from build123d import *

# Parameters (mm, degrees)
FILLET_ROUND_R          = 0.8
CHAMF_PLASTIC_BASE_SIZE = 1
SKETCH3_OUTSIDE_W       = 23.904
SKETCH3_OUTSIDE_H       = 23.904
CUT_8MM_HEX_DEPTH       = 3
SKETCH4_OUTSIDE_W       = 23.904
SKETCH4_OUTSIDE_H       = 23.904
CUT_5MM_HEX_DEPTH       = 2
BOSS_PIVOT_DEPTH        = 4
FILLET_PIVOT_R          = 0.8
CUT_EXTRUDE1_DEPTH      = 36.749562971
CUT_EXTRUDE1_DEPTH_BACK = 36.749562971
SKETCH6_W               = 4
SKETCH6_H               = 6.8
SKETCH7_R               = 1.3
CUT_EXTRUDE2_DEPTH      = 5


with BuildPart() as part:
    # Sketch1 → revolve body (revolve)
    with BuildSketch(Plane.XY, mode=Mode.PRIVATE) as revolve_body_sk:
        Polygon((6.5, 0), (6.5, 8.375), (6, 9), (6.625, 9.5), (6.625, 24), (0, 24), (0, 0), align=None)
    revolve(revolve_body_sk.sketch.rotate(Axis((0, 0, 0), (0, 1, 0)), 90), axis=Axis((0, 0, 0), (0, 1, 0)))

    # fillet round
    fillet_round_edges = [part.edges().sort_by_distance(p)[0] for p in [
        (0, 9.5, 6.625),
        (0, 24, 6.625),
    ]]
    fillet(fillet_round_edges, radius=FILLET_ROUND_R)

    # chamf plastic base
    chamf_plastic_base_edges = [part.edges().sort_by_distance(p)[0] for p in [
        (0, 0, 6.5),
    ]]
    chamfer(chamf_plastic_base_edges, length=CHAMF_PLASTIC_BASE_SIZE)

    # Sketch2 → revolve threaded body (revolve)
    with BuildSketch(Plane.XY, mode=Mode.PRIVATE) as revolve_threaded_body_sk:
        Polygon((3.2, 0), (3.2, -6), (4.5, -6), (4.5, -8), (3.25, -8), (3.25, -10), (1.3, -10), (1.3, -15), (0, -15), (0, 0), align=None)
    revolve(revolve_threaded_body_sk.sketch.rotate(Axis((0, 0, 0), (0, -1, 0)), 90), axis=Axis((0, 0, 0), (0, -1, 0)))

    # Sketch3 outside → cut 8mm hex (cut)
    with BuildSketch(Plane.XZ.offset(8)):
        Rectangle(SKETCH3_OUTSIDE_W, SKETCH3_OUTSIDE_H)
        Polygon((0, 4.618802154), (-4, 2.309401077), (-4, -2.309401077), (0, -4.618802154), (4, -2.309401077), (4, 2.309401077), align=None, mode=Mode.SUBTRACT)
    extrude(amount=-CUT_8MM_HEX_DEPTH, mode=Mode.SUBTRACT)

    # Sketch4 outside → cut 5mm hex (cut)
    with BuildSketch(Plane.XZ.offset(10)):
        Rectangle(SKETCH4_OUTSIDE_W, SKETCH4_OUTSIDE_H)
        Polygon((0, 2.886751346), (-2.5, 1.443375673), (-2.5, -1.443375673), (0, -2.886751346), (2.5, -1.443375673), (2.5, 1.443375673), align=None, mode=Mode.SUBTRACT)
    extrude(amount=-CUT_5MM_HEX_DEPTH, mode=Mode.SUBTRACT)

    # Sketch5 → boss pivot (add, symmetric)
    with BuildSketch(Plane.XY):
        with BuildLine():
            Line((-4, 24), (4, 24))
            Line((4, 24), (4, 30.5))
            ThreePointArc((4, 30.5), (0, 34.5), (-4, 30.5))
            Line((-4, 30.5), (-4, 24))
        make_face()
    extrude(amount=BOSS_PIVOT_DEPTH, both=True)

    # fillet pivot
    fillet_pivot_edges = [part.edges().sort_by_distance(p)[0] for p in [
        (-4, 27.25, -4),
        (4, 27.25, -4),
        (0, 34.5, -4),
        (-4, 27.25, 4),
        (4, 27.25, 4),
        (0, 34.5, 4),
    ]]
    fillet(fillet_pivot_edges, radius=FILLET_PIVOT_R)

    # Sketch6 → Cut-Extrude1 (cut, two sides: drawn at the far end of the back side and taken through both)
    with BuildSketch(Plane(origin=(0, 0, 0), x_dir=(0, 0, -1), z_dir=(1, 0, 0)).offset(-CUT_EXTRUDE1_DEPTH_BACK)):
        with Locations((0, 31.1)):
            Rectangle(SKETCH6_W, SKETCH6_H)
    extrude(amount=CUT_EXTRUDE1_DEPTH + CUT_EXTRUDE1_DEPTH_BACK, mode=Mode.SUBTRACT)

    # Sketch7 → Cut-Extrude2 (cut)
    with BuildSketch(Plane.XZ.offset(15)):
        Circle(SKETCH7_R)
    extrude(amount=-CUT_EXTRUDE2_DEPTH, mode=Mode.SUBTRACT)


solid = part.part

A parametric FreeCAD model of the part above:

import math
import FreeCAD as App
import Part
import Sketcher
Q = App.Units.Quantity


def edges_at(feature, points):
    """Names of the edges that pass closest to the given points."""
    edges = feature.Shape.Edges
    near = lambda p: min(range(len(edges)), key=lambda i: edges[i].distToShape(Part.Vertex(*p))[0])
    return sorted({f"Edge{near(p) + 1}" for p in points})


def add_polygon(sketch, points):
    """Adds a closed chain of lines whose ends are joined by coincident constraints."""
    first, n = sketch.GeometryCount, len(points)
    for a, b in zip(points, points[1:] + points[:1]):
        sketch.addGeometry(Part.LineSegment(App.Vector(*a, 0), App.Vector(*b, 0)), False)
    for i in range(n):
        sketch.addConstraint(Sketcher.Constraint("Coincident", first + i, 2, first + (i + 1) % n, 1))

doc = App.newDocument("Part")
body = doc.addObject("PartDesign::Body", "Body")

# Sketch on XY plane
sketch1 = body.newObject("Sketcher::SketchObject", "Sketch")
sketch1.AttachmentSupport = (doc.getObject("XY_Plane"), [""])
sketch1.MapMode = "FlatFace"
add_polygon(sketch1, [(6.5, 0), (6.5, 8.4), (6, 9), (6.6, 9.5), (6.6, 24), (0, 24), (0, 0)])  # lines 0-6
sketch1.addConstraint([
    Sketcher.Constraint("Vertical", 0),
    Sketcher.Constraint("Vertical", 3),
    Sketcher.Constraint("Horizontal", 4),
    Sketcher.Constraint("Vertical", 5),
    Sketcher.Constraint("Horizontal", 6),
    Sketcher.Constraint("Coincident", 5, 2, -1, 1),
    Sketcher.Constraint("Perpendicular", 1, 2),
    Sketcher.Constraint("Equal", 1, 2),
    Sketcher.Constraint("DistanceY", 5, 2, 5, 1, 24.0),
    Sketcher.Constraint("DistanceX", 6, 1, 6, 2, 6.5),
    Sketcher.Constraint("DistanceY", 3, 1, 3, 2, 14.5),
    Sketcher.Constraint("DistanceX", -1, 1, 1, 2, 6.0),
    Sketcher.Constraint("DistanceX", 4, 2, 4, 1, 6.625),
])
revolution = body.newObject("PartDesign::Revolution", "Revolution")
revolution.Profile = sketch1
revolution.ReferenceAxis = (sketch1, ["V_Axis"])
revolution.Angle = 360
doc.recompute()

fillet = body.newObject("PartDesign::Fillet", "Fillet")
fillet.Base = (revolution, edges_at(revolution, [(0, 9.5, 6.625), (0, 24, 6.625)]))
fillet.Radius = 0.8
doc.recompute()

chamfer = body.newObject("PartDesign::Chamfer", "Chamfer")
chamfer.Base = (fillet, edges_at(fillet, [(0, 0, 6.5)]))
chamfer.Size = 1

# Sketch on XY plane
sketch2 = body.newObject("Sketcher::SketchObject", "Sketch001")
sketch2.AttachmentSupport = (doc.getObject("XY_Plane"), [""])
sketch2.MapMode = "FlatFace"
add_polygon(sketch2, [(3.2, -6), (3.2, 0), (0, 0), (0, -15), (1.3, -15), (1.3, -10), (3.2, -10), (3.2, -8), (4.5, -8), (4.5, -6)])  # lines 0-9
sketch2.addConstraint([
    Sketcher.Constraint("Vertical", 0),
    Sketcher.Constraint("Horizontal", 1),
    Sketcher.Constraint("Vertical", 2),
    Sketcher.Constraint("Horizontal", 3),
    Sketcher.Constraint("Vertical", 4),
    Sketcher.Constraint("Horizontal", 5),
    Sketcher.Constraint("Vertical", 6),
    Sketcher.Constraint("Horizontal", 7),
    Sketcher.Constraint("Vertical", 8),
    Sketcher.Constraint("Horizontal", 9),
    Sketcher.Constraint("Coincident", 1, 2, -1, 1),
    Sketcher.Constraint("Equal", 3, 9),
    Sketcher.Constraint("Equal", 6, 8),
    Sketcher.Constraint("DistanceY", 0, 1, 0, 2, 6.0),
    Sketcher.Constraint("DistanceY", 2, 2, 2, 1, 15.0),
    Sketcher.Constraint("DistanceY", 4, 1, 4, 2, 5.0),
    Sketcher.Constraint("DistanceX", 1, 2, 1, 1, 3.2),
    Sketcher.Constraint("DistanceX", 3, 1, 3, 2, 1.3),
    Sketcher.Constraint("DistanceX", 5, 1, 5, 2, 1.95),
])
revolution2 = body.newObject("PartDesign::Revolution", "Revolution001")
revolution2.Profile = sketch2
revolution2.ReferenceAxis = (sketch2, ["V_Axis"])
revolution2.Angle = 360

# Sketch on XZ plane
sketch3 = body.newObject("Sketcher::SketchObject", "Sketch002")
sketch3.AttachmentSupport = (doc.getObject("XZ_Plane"), [""])
sketch3.MapMode = "FlatFace"
sketch3.AttachmentOffset = App.Placement(App.Vector(0, 0, 8), App.Rotation())
add_polygon(sketch3, [(-12, 12), (-12, -12), (12, -12), (12, 12)])  # lines 0-3
add_polygon(sketch3, [(-4, 2.3), (0, 4.6), (4, 2.3), (4, -2.3), (0, -4.6), (-4, -2.3)])  # lines 4-9
sketch3.addConstraint([
    Sketcher.Constraint("Vertical", 0),
    Sketcher.Constraint("Horizontal", 1),
    Sketcher.Constraint("Vertical", 2),
    Sketcher.Constraint("Horizontal", 3),
    Sketcher.Constraint("Vertical", 6),
    Sketcher.Constraint("Vertical", 9),
    Sketcher.Constraint("Symmetric", 0, 2, 2, 2, -1, 1),
    Sketcher.Constraint("Symmetric", 4, 2, 7, 2, -1, 1),
    Sketcher.Constraint("Symmetric", 5, 2, 8, 2, -1, 1),
    Sketcher.Constraint("PointOnObject", 4, 2, -2),
    Sketcher.Constraint("Parallel", 4, 7),
    Sketcher.Constraint("Horizontal", 6, 2, 8, 2),
    Sketcher.Constraint("Equal", 3, 0),
    Sketcher.Constraint("Angle", 4, Q("30 deg")),
    Sketcher.Constraint("DistanceX", -1, 1, 5, 2, 4.0),
    Sketcher.Constraint("DistanceX", 1, 1, 1, 2, 23.904),
    Sketcher.Constraint("DistanceY", -1, 1, 5, 2, 2.309401),
])
pocket1 = body.newObject("PartDesign::Pocket", "Pocket")
pocket1.Profile = sketch3
pocket1.Length = 3

# Sketch on XZ plane
sketch4 = body.newObject("Sketcher::SketchObject", "Sketch003")
sketch4.AttachmentSupport = (doc.getObject("XZ_Plane"), [""])
sketch4.MapMode = "FlatFace"
sketch4.AttachmentOffset = App.Placement(App.Vector(0, 0, 10), App.Rotation())
add_polygon(sketch4, [(-12, 12), (-12, -12), (12, -12), (12, 12)])  # lines 0-3
add_polygon(sketch4, [(-2.5, 1.4), (0, 2.9), (2.5, 1.4), (2.5, -1.4), (0, -2.9), (-2.5, -1.4)])  # lines 4-9
sketch4.addConstraint([
    Sketcher.Constraint("Vertical", 0),
    Sketcher.Constraint("Horizontal", 1),
    Sketcher.Constraint("Vertical", 2),
    Sketcher.Constraint("Horizontal", 3),
    Sketcher.Constraint("Vertical", 6),
    Sketcher.Constraint("Vertical", 9),
    Sketcher.Constraint("Symmetric", 0, 2, 2, 2, -1, 1),
    Sketcher.Constraint("Symmetric", 4, 2, 7, 2, -1, 1),
    Sketcher.Constraint("Symmetric", 5, 2, 8, 2, -1, 1),
    Sketcher.Constraint("PointOnObject", 4, 2, -2),
    Sketcher.Constraint("Parallel", 4, 7),
    Sketcher.Constraint("Horizontal", 6, 2, 8, 2),
    Sketcher.Constraint("Equal", 3, 0),
    Sketcher.Constraint("Angle", 4, Q("30 deg")),
    Sketcher.Constraint("DistanceX", 8, 2, 6, 2, 5.0),
    Sketcher.Constraint("DistanceX", 1, 1, 1, 2, 23.904),
    Sketcher.Constraint("DistanceY", 6, 2, 6, 1, 2.886751),
])
pocket2 = body.newObject("PartDesign::Pocket", "Pocket001")
pocket2.Profile = sketch4
pocket2.Length = 2

# Sketch on XY plane
sketch5 = body.newObject("Sketcher::SketchObject", "Sketch004")
sketch5.AttachmentSupport = (doc.getObject("XY_Plane"), [""])
sketch5.MapMode = "FlatFace"
sketch5.addGeometry([
    Part.LineSegment(App.Vector(-4, 24, 0), App.Vector(4, 24, 0)),
    Part.LineSegment(App.Vector(4, 24, 0), App.Vector(4, 30.5, 0)),
    Part.ArcOfCircle(Part.Circle(App.Vector(0, 30.5, 0), App.Vector(0, 0, 1), 4), math.radians(0), math.radians(180)),
    Part.LineSegment(App.Vector(-4, 30.5, 0), App.Vector(-4, 24, 0)),
], False)
sketch5.addConstraint([
    Sketcher.Constraint("Coincident", 0, 2, 1, 1),
    Sketcher.Constraint("Tangent", 1, 2, 2, 1),
    Sketcher.Constraint("Tangent", 2, 2, 3, 1),
    Sketcher.Constraint("Coincident", 3, 2, 0, 1),
    Sketcher.Constraint("Horizontal", 0),
    Sketcher.Constraint("Vertical", 1),
    Sketcher.Constraint("Vertical", 3),
    Sketcher.Constraint("PointOnObject", 2, 3, -2),
    Sketcher.Constraint("Radius", 2, 4.0),
    Sketcher.Constraint("DistanceY", 1, 1, 1, 2, 6.5),
    Sketcher.Constraint("DistanceY", -1, 1, 0, 2, 24.0),
])
pad1 = body.newObject("PartDesign::Pad", "Pad")
pad1.Profile = sketch5
pad1.Length = 8
pad1.Midplane = True
doc.recompute()

fillet2 = body.newObject("PartDesign::Fillet", "Fillet001")
fillet2.Base = (pad1, edges_at(pad1, [
    (-4, 27.25, -4),
    (4, 27.25, -4),
    (0, 34.5, -4),
    (-4, 27.25, 4),
    (4, 27.25, 4),
    (0, 34.5, 4),
]))
fillet2.Radius = 0.8

# Sketch on YZ plane
sketch6 = body.newObject("Sketcher::SketchObject", "Sketch005")
sketch6.AttachmentSupport = (doc.getObject("YZ_Plane"), [""])
sketch6.MapMode = "FlatFace"
add_polygon(sketch6, [(34.5, 2), (27.7, 2), (27.7, -2), (34.5, -2)])  # lines 0-3
sketch6.addConstraint([
    Sketcher.Constraint("Horizontal", 0),
    Sketcher.Constraint("Vertical", 1),
    Sketcher.Constraint("Horizontal", 2),
    Sketcher.Constraint("Vertical", 3),
    Sketcher.Constraint("DistanceY", 1, 2, 1, 1, 4.0),
    Sketcher.Constraint("DistanceX", 0, 2, 0, 1, 6.8),
    Sketcher.Constraint("DistanceY", -1, 1, 0, 2, 2.0),
    Sketcher.Constraint("DistanceX", -1, 1, 0, 2, 27.7),
])
pocket3 = body.newObject("PartDesign::Pocket", "Pocket002")
pocket3.Profile = sketch6
pocket3.Type = "ThroughAll"
pocket3.Midplane = True

# Sketch on XZ plane
sketch7 = body.newObject("Sketcher::SketchObject", "Sketch006")
sketch7.AttachmentSupport = (doc.getObject("XZ_Plane"), [""])
sketch7.MapMode = "FlatFace"
sketch7.AttachmentOffset = App.Placement(App.Vector(0, 0, 15), App.Rotation())
sketch7.addGeometry(Part.Circle(App.Vector(0, 0, 0), App.Vector(0, 0, 1), 1.3), False)
sketch7.addConstraint([
    Sketcher.Constraint("Coincident", 0, 3, -1, 1),
    Sketcher.Constraint("Diameter", 0, 2.6),
])
pocket4 = body.newObject("PartDesign::Pocket", "Pocket003")
pocket4.Profile = sketch7
pocket4.Length = 5

doc.recompute()
